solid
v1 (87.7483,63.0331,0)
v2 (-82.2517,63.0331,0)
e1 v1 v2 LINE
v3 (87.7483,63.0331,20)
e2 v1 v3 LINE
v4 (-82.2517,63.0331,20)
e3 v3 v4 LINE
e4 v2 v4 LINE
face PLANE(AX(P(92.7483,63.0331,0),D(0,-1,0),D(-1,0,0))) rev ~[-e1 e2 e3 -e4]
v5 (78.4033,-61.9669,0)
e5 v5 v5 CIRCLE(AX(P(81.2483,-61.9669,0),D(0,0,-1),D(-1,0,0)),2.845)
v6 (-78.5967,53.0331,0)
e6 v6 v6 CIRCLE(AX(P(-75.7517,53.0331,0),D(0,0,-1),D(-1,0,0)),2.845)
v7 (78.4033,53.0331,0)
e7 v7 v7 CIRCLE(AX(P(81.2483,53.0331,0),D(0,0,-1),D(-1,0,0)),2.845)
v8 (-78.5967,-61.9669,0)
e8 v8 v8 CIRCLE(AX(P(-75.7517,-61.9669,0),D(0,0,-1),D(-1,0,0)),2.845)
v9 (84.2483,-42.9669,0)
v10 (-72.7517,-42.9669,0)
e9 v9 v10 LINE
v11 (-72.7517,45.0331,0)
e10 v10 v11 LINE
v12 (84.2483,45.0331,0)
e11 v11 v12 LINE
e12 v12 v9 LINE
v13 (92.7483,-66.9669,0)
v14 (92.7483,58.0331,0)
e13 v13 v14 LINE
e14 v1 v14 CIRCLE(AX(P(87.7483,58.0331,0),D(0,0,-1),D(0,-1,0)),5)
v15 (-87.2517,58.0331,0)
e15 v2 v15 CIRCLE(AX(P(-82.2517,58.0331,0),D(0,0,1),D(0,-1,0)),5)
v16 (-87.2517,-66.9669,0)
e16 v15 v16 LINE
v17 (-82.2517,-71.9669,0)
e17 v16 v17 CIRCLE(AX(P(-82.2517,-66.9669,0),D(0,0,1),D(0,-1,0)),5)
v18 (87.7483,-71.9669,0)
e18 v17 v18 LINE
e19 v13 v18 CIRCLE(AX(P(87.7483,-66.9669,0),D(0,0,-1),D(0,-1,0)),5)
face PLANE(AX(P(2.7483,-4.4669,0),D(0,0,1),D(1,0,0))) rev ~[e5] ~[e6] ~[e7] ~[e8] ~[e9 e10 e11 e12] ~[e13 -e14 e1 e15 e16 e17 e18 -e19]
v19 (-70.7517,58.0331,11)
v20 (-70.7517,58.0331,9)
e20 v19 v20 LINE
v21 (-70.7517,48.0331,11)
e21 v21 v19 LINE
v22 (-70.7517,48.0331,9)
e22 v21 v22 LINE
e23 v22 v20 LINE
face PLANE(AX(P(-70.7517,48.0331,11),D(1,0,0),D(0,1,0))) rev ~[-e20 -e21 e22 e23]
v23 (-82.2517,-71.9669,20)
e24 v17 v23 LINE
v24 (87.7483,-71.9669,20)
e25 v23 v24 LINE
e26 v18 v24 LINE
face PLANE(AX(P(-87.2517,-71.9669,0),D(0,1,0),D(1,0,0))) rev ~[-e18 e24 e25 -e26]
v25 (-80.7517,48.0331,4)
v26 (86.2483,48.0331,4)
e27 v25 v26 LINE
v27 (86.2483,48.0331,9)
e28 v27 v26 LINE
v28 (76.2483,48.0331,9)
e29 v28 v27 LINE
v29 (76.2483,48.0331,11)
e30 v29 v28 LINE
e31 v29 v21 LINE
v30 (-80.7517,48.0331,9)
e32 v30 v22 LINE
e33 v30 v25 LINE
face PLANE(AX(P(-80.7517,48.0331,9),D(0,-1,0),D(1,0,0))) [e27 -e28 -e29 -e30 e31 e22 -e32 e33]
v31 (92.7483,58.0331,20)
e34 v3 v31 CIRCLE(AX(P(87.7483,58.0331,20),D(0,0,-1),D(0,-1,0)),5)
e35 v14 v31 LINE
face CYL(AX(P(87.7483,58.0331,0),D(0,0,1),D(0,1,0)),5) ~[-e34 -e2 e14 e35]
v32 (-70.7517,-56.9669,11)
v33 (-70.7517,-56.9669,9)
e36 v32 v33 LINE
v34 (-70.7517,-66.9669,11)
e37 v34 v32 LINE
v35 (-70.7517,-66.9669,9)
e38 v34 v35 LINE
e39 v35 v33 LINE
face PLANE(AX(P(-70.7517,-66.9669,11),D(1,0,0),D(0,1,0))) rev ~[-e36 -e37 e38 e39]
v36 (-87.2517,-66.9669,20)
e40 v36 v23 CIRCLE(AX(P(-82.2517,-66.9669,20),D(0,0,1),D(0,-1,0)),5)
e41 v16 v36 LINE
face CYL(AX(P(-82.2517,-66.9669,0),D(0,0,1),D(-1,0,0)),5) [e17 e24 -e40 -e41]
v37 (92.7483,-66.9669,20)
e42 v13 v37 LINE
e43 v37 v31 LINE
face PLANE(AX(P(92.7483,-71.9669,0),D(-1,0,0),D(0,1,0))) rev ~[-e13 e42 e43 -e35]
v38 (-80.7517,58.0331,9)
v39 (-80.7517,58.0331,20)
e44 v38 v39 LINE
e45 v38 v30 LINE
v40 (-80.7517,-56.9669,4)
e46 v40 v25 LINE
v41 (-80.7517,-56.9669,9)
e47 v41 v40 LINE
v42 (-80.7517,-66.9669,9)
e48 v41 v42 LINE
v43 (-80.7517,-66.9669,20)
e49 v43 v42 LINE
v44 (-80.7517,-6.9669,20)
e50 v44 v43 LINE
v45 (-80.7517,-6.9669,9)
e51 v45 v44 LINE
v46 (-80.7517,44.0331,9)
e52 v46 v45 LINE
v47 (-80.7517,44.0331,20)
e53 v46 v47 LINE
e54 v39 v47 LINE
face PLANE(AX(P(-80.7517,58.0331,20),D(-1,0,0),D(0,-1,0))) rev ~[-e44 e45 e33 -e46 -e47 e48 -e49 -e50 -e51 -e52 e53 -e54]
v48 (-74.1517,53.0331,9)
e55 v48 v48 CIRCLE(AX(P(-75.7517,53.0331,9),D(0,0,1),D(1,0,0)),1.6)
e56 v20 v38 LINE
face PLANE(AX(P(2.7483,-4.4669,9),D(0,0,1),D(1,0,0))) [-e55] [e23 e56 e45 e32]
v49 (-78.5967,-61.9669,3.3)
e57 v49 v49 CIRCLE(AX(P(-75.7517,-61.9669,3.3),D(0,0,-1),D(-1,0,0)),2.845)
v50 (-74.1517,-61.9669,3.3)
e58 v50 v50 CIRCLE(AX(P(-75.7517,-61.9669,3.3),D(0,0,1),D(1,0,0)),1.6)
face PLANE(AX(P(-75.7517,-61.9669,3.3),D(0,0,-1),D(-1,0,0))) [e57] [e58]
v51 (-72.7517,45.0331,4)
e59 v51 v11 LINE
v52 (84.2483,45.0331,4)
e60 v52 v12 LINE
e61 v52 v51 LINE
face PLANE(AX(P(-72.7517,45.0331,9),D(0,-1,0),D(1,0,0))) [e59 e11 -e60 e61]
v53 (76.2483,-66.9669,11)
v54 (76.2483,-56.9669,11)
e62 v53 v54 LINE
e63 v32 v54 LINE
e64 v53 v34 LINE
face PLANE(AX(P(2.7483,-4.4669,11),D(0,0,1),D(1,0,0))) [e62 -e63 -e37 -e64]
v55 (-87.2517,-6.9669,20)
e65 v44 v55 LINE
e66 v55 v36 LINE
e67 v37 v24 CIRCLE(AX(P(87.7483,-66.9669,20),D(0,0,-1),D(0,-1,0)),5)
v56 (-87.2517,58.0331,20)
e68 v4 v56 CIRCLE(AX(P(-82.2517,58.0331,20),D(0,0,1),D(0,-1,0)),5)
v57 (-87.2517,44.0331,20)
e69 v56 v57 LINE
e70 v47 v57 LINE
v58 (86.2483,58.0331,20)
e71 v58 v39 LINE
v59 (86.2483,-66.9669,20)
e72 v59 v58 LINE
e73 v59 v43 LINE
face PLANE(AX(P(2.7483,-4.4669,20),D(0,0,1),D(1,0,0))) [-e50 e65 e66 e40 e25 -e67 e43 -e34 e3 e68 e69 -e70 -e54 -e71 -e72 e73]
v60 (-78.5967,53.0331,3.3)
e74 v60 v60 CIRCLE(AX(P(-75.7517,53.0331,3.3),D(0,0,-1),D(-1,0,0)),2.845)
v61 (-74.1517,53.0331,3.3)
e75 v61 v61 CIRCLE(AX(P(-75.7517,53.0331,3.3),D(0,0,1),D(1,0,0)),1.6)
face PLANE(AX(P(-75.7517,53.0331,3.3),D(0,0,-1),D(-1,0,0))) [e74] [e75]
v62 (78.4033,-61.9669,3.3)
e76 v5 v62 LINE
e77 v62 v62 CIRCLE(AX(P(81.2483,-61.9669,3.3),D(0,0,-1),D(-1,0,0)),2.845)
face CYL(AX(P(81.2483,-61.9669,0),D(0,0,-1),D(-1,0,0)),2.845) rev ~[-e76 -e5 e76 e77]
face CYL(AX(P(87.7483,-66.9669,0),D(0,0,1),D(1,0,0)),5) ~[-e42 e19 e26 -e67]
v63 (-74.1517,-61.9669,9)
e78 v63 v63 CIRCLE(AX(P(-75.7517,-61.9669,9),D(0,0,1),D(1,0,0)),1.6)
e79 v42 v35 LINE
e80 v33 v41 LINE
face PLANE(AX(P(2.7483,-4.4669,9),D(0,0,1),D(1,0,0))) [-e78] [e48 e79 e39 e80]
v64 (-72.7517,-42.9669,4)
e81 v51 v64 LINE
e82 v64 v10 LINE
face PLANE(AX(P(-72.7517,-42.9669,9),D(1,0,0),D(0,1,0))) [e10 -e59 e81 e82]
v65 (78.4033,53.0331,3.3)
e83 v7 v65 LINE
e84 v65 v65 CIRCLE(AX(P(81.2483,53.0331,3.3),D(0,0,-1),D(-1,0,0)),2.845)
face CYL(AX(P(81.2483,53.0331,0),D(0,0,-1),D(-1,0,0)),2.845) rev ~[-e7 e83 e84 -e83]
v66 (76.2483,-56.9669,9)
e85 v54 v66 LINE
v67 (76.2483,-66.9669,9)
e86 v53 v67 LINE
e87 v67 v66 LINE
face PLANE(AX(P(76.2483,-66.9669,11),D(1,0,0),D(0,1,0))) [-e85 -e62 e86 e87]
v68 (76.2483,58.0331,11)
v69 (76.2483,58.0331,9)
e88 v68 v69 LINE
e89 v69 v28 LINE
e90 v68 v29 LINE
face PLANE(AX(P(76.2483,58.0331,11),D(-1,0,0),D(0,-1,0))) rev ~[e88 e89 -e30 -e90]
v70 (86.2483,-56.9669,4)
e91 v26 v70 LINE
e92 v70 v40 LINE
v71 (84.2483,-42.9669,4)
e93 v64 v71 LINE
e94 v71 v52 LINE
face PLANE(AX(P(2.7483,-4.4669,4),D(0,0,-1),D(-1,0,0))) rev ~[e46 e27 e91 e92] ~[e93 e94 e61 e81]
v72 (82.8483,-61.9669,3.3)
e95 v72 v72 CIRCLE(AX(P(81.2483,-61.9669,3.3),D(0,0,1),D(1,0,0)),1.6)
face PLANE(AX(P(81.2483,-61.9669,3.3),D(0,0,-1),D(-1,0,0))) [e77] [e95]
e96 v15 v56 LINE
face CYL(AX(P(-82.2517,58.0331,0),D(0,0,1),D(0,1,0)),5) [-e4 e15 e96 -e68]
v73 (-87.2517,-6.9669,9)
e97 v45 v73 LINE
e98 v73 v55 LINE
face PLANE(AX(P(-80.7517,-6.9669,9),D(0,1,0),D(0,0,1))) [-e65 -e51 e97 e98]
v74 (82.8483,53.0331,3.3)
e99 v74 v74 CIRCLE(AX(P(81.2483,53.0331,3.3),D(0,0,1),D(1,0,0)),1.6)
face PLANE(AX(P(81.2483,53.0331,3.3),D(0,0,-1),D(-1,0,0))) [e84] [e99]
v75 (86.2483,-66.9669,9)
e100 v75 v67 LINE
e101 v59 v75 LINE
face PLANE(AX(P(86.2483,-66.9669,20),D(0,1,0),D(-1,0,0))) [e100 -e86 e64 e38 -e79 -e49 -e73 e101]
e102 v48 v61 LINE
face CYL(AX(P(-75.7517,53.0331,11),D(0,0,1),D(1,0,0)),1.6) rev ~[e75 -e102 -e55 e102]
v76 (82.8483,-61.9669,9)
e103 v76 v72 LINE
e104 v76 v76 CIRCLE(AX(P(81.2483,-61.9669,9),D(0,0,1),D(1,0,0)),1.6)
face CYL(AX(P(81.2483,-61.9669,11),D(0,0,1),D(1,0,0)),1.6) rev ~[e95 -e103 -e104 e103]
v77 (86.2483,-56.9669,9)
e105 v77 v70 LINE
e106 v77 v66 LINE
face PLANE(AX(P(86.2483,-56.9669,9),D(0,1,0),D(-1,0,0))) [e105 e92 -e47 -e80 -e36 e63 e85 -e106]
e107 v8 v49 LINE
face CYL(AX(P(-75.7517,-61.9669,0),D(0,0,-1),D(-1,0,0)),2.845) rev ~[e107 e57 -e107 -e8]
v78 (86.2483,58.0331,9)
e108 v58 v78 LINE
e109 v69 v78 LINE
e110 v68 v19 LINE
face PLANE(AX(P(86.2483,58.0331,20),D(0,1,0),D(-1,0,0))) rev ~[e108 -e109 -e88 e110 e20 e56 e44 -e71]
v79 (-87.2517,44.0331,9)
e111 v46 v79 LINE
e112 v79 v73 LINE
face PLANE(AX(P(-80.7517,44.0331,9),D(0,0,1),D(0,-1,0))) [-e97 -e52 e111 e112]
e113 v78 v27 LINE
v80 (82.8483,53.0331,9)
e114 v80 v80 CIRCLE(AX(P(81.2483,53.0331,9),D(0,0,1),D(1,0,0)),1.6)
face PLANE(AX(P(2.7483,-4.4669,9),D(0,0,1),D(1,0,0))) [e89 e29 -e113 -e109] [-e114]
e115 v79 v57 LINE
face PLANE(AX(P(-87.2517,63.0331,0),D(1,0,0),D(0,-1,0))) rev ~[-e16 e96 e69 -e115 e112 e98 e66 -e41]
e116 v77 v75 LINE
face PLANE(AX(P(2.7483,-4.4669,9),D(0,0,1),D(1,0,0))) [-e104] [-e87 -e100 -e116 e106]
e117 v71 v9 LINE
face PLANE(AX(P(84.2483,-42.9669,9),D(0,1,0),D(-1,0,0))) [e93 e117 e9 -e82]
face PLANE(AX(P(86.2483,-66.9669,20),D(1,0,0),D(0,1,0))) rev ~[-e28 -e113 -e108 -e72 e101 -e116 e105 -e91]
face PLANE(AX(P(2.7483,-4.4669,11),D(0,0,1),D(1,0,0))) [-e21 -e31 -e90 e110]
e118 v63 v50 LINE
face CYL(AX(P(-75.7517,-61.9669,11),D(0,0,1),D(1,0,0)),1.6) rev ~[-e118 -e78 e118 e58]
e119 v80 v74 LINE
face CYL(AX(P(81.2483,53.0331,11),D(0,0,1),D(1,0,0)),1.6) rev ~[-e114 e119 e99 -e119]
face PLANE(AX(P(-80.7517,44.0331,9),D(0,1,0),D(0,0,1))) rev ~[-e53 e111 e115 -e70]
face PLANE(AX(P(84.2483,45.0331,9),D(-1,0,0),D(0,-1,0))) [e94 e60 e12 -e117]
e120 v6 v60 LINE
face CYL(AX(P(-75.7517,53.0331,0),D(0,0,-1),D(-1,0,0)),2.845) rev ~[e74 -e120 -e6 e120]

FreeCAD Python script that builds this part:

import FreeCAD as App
import Part
import Sketcher

V = App.Vector


def edges_at(feature, points):
    """Names of the edges that pass closest to the given points."""
    edges = feature.Shape.Edges
    near = lambda p: min(range(len(edges)), key=lambda i: edges[i].distToShape(Part.Vertex(*p))[0])
    return sorted({f"Edge{near(p) + 1}" for p in points})


def add_polygon(sketch, points):
    """Adds a closed chain of lines whose ends are joined by coincident constraints."""
    first, n = sketch.GeometryCount, len(points)
    for a, b in zip(points, points[1:] + points[:1]):
        sketch.addGeometry(Part.LineSegment(App.Vector(*a, 0), App.Vector(*b, 0)), False)
    for i in range(n):
        sketch.addConstraint(Sketcher.Constraint("Coincident", first + i, 2, first + (i + 1) % n, 1))

doc = App.newDocument("Part")
body = doc.addObject("PartDesign::Body", "Body")

# Sketch on XY plane
sketch1 = doc.addObject("Sketcher::SketchObject", "Sketch")
body.addObject(sketch1)
sketch1.AttachmentSupport = (doc.XY_Plane, [""])
sketch1.MapMode = "FlatFace"
add_polygon(sketch1, [(93, -72), (93, 63), (-87, 63), (-87, -72)])  # lines 0-3
sketch1.addConstraint([
    Sketcher.Constraint("Vertical", 0),
    Sketcher.Constraint("Horizontal", 1),
    Sketcher.Constraint("Vertical", 2),
    Sketcher.Constraint("Horizontal", 3),
    Sketcher.Constraint("DistanceX", 1, 2, 1, 1, 180.0),
    Sketcher.Constraint("DistanceY", 0, 1, 0, 2, 135.0),
    Sketcher.Constraint("DistanceY", -1, 1, 0, 2, 63.033),
    Sketcher.Constraint("DistanceX", -1, 1, 0, 2, 92.7483),
])
pad1 = doc.addObject("PartDesign::Pad", "Pad")
body.addObject(pad1)
pad1.Profile = sketch1
pad1.Length = 20

# Sketch on XY plane
sketch2 = doc.addObject("Sketcher::SketchObject", "Sketch001")
body.addObject(sketch2)
sketch2.AttachmentSupport = (doc.XY_Plane, [""])
sketch2.MapMode = "FlatFace"
sketch2.AttachmentOffset = App.Placement(V(0, 0, 20), App.Rotation())
add_polygon(sketch2, [(86, 58), (-81, 58), (-81, -67), (86, -67)])  # lines 0-3
sketch2.addConstraint([
    Sketcher.Constraint("Horizontal", 0),
    Sketcher.Constraint("Vertical", 1),
    Sketcher.Constraint("Horizontal", 2),
    Sketcher.Constraint("Vertical", 3),
    Sketcher.Constraint("DistanceX", 0, 2, 0, 1, 167.0),
    Sketcher.Constraint("DistanceY", 1, 2, 1, 1, 125.0),
    Sketcher.Constraint("DistanceY", -1, 1, 0, 2, 58.033),
    Sketcher.Constraint("DistanceX", 0, 2, -1, 1, 80.7517),
])
pocket1 = doc.addObject("PartDesign::Pocket", "Pocket")
body.addObject(pocket1)
pocket1.Profile = sketch2
pocket1.Length = 9

# Sketch on XY plane
sketch3 = doc.addObject("Sketcher::SketchObject", "Sketch002")
body.addObject(sketch3)
sketch3.AttachmentSupport = (doc.XY_Plane, [""])
sketch3.MapMode = "FlatFace"
sketch3.AttachmentOffset = App.Placement(V(0, 0, 11), App.Rotation())
add_polygon(sketch3, [(76, 58), (76, 48), (-71, 48), (-71, 58), (-81, 58), (-81, -67), (-71, -67), (-71, -57), (76, -57), (76, -67), (86, -67), (86, 58)])  # lines 0-11
sketch3.addConstraint([
    Sketcher.Constraint("Vertical", 0),
    Sketcher.Constraint("Horizontal", 1),
    Sketcher.Constraint("Vertical", 2),
    Sketcher.Constraint("Horizontal", 3),
    Sketcher.Constraint("Vertical", 4),
    Sketcher.Constraint("Horizontal", 5),
    Sketcher.Constraint("Vertical", 6),
    Sketcher.Constraint("Horizontal", 7),
    Sketcher.Constraint("Vertical", 8),
    Sketcher.Constraint("Horizontal", 9),
    Sketcher.Constraint("Vertical", 10),
    Sketcher.Constraint("Horizontal", 11),
    Sketcher.Constraint("Horizontal", 5, 2, 8, 2),
    Sketcher.Constraint("Horizontal", 3, 2, 10, 2),
    Sketcher.Constraint("Vertical", 2, 2, 5, 2),
    Sketcher.Constraint("Vertical", 0, 2, 7, 2),
    Sketcher.Constraint("Equal", 5, 9),
    Sketcher.Constraint("Equal", 11, 0),
    Sketcher.Constraint("Equal", 2, 6),
    Sketcher.Constraint("DistanceX", 1, 2, 1, 1, 147.0),
    Sketcher.Constraint("DistanceX", 3, 2, 3, 1, 10.0),
    Sketcher.Constraint("DistanceY", 4, 2, 4, 1, 125.0),
    Sketcher.Constraint("DistanceY", -1, 1, 0, 2, 48.033),
    Sketcher.Constraint("DistanceX", -1, 1, 0, 2, 76.2483),
])
pocket2 = doc.addObject("PartDesign::Pocket", "Pocket001")
body.addObject(pocket2)
pocket2.Profile = sketch3
pocket2.Length = 2

# Sketch on XY plane
sketch4 = doc.addObject("Sketcher::SketchObject", "Sketch003")
body.addObject(sketch4)
sketch4.AttachmentSupport = (doc.XY_Plane, [""])
sketch4.MapMode = "FlatFace"
sketch4.AttachmentOffset = App.Placement(V(0, 0, 11), App.Rotation())
sketch4.addGeometry([
    Part.Circle(V(-75.8, 53, 0), V(0, 0, 1), 1.6),
    Part.Circle(V(-75.8, -62, 0), V(0, 0, 1), 1.6),
    Part.Circle(V(81.2, 53, 0), V(0, 0, 1), 1.6),
    Part.Circle(V(81.2, -62, 0), V(0, 0, 1), 1.6),
], False)
sketch4.addConstraint([
    Sketcher.Constraint("Equal", 0, 1),
    Sketcher.Constraint("Equal", 1, 2),
    Sketcher.Constraint("Equal", 2, 3),
    Sketcher.Constraint("Horizontal", 0, 3, 2, 3),
    Sketcher.Constraint("Horizontal", 1, 3, 3, 3),
    Sketcher.Constraint("Vertical", 0, 3, 1, 3),
    Sketcher.Constraint("Vertical", 2, 3, 3, 3),
    Sketcher.Constraint("Diameter", 0, 3.2),
    Sketcher.Constraint("DistanceY", 1, 3, 0, 3, 115.0),
    Sketcher.Constraint("DistanceX", 0, 3, 2, 3, 157.0),
    Sketcher.Constraint("DistanceY", -1, 1, 0, 3, 53.033),
    Sketcher.Constraint("DistanceX", 0, 3, -1, 1, 75.7517),
])
pocket3 = doc.addObject("PartDesign::Pocket", "Pocket002")
body.addObject(pocket3)
pocket3.Profile = sketch4
pocket3.Length = 11

# Sketch on XY plane
sketch5 = doc.addObject("Sketcher::SketchObject", "Sketch004")
body.addObject(sketch5)
sketch5.AttachmentSupport = (doc.XY_Plane, [""])
sketch5.MapMode = "FlatFace"
sketch5.AttachmentOffset = App.Placement(V(0, 0, 9), App.Rotation())
add_polygon(sketch5, [(86, 48), (-81, 48), (-81, -57), (86, -57)])  # lines 0-3
sketch5.addConstraint([
    Sketcher.Constraint("Horizontal", 0),
    Sketcher.Constraint("Vertical", 1),
    Sketcher.Constraint("Horizontal", 2),
    Sketcher.Constraint("Vertical", 3),
    Sketcher.Constraint("DistanceX", 0, 2, 0, 1, 167.0),
    Sketcher.Constraint("DistanceY", 1, 2, 1, 1, 105.0),
    Sketcher.Constraint("DistanceY", -1, 1, 0, 2, 48.033),
    Sketcher.Constraint("DistanceX", 0, 2, -1, 1, 80.7517),
])
pocket4 = doc.addObject("PartDesign::Pocket", "Pocket003")
body.addObject(pocket4)
pocket4.Profile = sketch5
pocket4.Length = 5

# Sketch on XY plane
sketch6 = doc.addObject("Sketcher::SketchObject", "Sketch005")
body.addObject(sketch6)
sketch6.AttachmentSupport = (doc.XY_Plane, [""])
sketch6.MapMode = "FlatFace"
sketch6.AttachmentOffset = App.Placement(V(0, 0, 9), App.Rotation())
add_polygon(sketch6, [(84, 45), (-73, 45), (-73, -43), (84, -43)])  # lines 0-3
sketch6.addConstraint([
    Sketcher.Constraint("Horizontal", 0),
    Sketcher.Constraint("Vertical", 1),
    Sketcher.Constraint("Horizontal", 2),
    Sketcher.Constraint("Vertical", 3),
    Sketcher.Constraint("DistanceX", 0, 2, 0, 1, 157.0),
    Sketcher.Constraint("DistanceY", 1, 2, 1, 1, 88.0),
    Sketcher.Constraint("DistanceY", -1, 1, 0, 2, 45.033),
    Sketcher.Constraint("DistanceX", 0, 2, -1, 1, 72.7517),
])
pocket5 = doc.addObject("PartDesign::Pocket", "Pocket004")
body.addObject(pocket5)
pocket5.Profile = sketch6
pocket5.Type = "ThroughAll"

# Sketch on YZ plane
sketch7 = doc.addObject("Sketcher::SketchObject", "Sketch006")
body.addObject(sketch7)
sketch7.AttachmentSupport = (doc.YZ_Plane, [""])
sketch7.MapMode = "FlatFace"
sketch7.AttachmentOffset = App.Placement(V(0, 0, -80.7517), App.Rotation())
add_polygon(sketch7, [(-7, 9), (44, 9), (44, 20), (-7, 20)])  # lines 0-3
sketch7.addConstraint([
    Sketcher.Constraint("Horizontal", 0),
    Sketcher.Constraint("Vertical", 1),
    Sketcher.Constraint("Horizontal", 2),
    Sketcher.Constraint("Vertical", 3),
    Sketcher.Constraint("DistanceX", 0, 1, 0, 2, 51.0),
    Sketcher.Constraint("DistanceY", 1, 1, 1, 2, 11.0),
    Sketcher.Constraint("DistanceY", -1, 1, 0, 2, 9.0),
    Sketcher.Constraint("DistanceX", -1, 1, 0, 2, 44.033),
])
pocket6 = doc.addObject("PartDesign::Pocket", "Pocket005")
body.addObject(pocket6)
pocket6.Profile = sketch7
pocket6.Type = "ThroughAll"

# Sketch on XY plane
sketch8 = doc.addObject("Sketcher::SketchObject", "Sketch007")
body.addObject(sketch8)
sketch8.AttachmentSupport = (doc.XY_Plane, [""])
sketch8.MapMode = "FlatFace"
sketch8.addGeometry([
    Part.Circle(V(81.2, 53, 0), V(0, 0, 1), 2.8),
    Part.Circle(V(81.2, -62, 0), V(0, 0, 1), 2.8),
    Part.Circle(V(-75.8, -62, 0), V(0, 0, 1), 2.8),
    Part.Circle(V(-75.8, 53, 0), V(0, 0, 1), 2.8),
], False)
sketch8.addConstraint([
    Sketcher.Constraint("Equal", 0, 1),
    Sketcher.Constraint("Equal", 1, 2),
    Sketcher.Constraint("Equal", 2, 3),
    Sketcher.Constraint("Horizontal", 1, 3, 2, 3),
    Sketcher.Constraint("Horizontal", 0, 3, 3, 3),
    Sketcher.Constraint("Vertical", 0, 3, 1, 3),
    Sketcher.Constraint("Vertical", 2, 3, 3, 3),
    Sketcher.Constraint("Diameter", 0, 5.69),
    Sketcher.Constraint("DistanceY", 1, 3, 0, 3, 115.0),
    Sketcher.Constraint("DistanceX", 2, 3, 1, 3, 157.0),
    Sketcher.Constraint("DistanceY", -1, 1, 0, 3, 53.033),
    Sketcher.Constraint("DistanceX", -1, 1, 0, 3, 81.2483),
])
pocket7 = doc.addObject("PartDesign::Pocket", "Pocket006")
body.addObject(pocket7)
pocket7.Profile = sketch8
pocket7.Length = 3.3
pocket7.Reversed = True
doc.recompute()

fillet = doc.addObject("PartDesign::Fillet", "Fillet")
body.addObject(fillet)
fillet.Base = (pocket7, edges_at(pocket7, [
    (-87.252, -71.967, 10),
    (92.748, -71.967, 10),
    (92.748, 63.033, 10),
    (-87.252, 63.033, 10),
]))
fillet.Radius = 5

doc.recompute()
